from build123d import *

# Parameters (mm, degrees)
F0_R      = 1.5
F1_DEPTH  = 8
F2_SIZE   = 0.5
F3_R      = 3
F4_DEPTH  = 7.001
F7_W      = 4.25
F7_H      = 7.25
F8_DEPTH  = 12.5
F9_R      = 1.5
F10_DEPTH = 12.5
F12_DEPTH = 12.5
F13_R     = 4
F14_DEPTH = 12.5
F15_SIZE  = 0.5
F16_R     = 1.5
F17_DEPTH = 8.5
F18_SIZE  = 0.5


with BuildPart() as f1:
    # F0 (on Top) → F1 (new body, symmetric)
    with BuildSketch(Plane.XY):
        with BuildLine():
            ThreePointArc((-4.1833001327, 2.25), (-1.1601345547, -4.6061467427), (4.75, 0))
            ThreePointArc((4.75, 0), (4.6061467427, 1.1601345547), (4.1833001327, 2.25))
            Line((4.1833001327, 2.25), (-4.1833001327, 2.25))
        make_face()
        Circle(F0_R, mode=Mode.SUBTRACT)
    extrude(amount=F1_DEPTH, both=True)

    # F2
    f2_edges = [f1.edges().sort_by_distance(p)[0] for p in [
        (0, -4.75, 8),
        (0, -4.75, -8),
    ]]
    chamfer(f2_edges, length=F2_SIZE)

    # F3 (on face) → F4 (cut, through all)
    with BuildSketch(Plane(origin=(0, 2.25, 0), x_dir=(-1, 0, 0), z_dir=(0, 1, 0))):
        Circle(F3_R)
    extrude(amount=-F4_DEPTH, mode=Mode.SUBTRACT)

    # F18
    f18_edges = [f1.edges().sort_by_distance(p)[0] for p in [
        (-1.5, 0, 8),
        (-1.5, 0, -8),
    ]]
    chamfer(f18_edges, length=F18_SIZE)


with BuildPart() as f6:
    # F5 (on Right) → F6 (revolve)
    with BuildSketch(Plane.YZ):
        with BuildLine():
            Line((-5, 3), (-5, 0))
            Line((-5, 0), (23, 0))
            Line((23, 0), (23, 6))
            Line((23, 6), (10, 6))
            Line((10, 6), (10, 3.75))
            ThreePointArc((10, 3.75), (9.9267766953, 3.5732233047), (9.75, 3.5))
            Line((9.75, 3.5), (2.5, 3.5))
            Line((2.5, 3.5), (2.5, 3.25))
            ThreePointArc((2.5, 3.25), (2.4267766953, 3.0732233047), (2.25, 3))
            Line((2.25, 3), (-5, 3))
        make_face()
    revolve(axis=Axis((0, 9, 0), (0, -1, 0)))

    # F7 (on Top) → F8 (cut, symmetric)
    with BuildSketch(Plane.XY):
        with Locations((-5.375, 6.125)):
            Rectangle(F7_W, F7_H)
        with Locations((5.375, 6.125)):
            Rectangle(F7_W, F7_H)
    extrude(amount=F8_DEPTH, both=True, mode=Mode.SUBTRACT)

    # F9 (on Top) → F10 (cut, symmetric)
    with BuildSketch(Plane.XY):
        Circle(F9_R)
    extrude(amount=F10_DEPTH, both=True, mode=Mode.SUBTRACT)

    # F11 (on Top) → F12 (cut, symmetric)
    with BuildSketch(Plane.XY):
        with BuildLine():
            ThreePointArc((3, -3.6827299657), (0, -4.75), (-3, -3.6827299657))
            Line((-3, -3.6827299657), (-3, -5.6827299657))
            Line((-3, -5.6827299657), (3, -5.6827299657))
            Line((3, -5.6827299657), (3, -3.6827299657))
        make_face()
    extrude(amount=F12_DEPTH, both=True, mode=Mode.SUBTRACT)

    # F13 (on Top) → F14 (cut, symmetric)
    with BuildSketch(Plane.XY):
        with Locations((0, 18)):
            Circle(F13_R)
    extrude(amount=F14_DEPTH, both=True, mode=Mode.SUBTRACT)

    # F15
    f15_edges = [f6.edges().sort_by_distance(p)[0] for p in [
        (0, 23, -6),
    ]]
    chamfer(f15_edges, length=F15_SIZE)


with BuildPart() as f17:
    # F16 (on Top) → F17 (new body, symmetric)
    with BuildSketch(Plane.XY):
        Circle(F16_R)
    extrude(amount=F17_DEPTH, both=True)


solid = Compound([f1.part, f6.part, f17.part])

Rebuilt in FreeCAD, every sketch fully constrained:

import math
import FreeCAD as App
import Part
import Sketcher
from FreeCAD import Vector
Q = App.Units.Quantity


def edges_at(feature, points):
    """Names of the edges that pass closest to the given points."""
    edges = feature.Shape.Edges
    near = lambda p: min(range(len(edges)), key=lambda i: edges[i].distToShape(Part.Vertex(*p))[0])
    return sorted({f"Edge{near(p) + 1}" for p in points})

doc = App.newDocument("Part")
body = doc.addObject("PartDesign::Body", "Body")

# Sketch on XY plane
sketch1 = body.newObject("Sketcher::SketchObject", "Sketch")
sketch1.AttachmentSupport = (doc.getObject("XY_Plane"), [""])
sketch1.MapMode = "FlatFace"
sketch1.addGeometry(Part.ArcOfCircle(Part.Circle(Vector(0, 0, 0), Vector(0, 0, 1), 4.8), math.radians(152), math.radians(360)), False)
sketch1.addGeometry(Part.ArcOfCircle(Part.Circle(Vector(0, 0, 0), Vector(0, 0, 1), 4.7), math.radians(0), math.radians(28)), False)
sketch1.addGeometry(Part.LineSegment(Vector(4.2, 2.2, 0), Vector(-4.2, 2.2, 0)), False)
sketch1.addGeometry(Part.Circle(Vector(0, 0, 0), Vector(0, 0, 1), 1.5), False)
sketch1.addConstraint(Sketcher.Constraint("Tangent", 0, 2, 1, 1))
sketch1.addConstraint(Sketcher.Constraint("Coincident", 1, 2, 2, 1))
sketch1.addConstraint(Sketcher.Constraint("Coincident", 2, 2, 0, 1))
sketch1.addConstraint(Sketcher.Constraint("Horizontal", 2))
sketch1.addConstraint(Sketcher.Constraint("Coincident", 0, 3, -1, 1))
sketch1.addConstraint(Sketcher.Constraint("Coincident", 3, 3, -1, 1))
sketch1.addConstraint(Sketcher.Constraint("Equal", 0, 1))
sketch1.addConstraint(Sketcher.Constraint("PointOnObject", 0, 2, -1))
sketch1.addConstraint(Sketcher.Constraint("Diameter", 3, Q("3 mm")))
sketch1.addConstraint(Sketcher.Constraint("Radius", 0, Q("4.75 mm")))
sketch1.addConstraint(Sketcher.Constraint("DistanceY", -1, 1, 1, 2, Q("2.25 mm")))
pad1 = body.newObject("PartDesign::Pad", "Pad")
pad1.Profile = sketch1
pad1.Length = 16
pad1.Midplane = True
doc.recompute()

chamfer = body.newObject("PartDesign::Chamfer", "Chamfer")
chamfer.Base = (pad1, edges_at(pad1, [(-1.16, -4.606, 8), (-1.16, -4.606, -8)]))
chamfer.Size = 0.5

# Sketch on XZ plane
sketch2 = body.newObject("Sketcher::SketchObject", "Sketch001")
sketch2.AttachmentSupport = (doc.getObject("XZ_Plane"), [""])
sketch2.MapMode = "FlatFace"
sketch2.AttachmentOffset = App.Placement(Vector(0, 0, -2.25), App.Rotation())
sketch2.addGeometry(Part.Circle(Vector(0, 0, 0), Vector(0, 0, 1), 3), False)
sketch2.addConstraint(Sketcher.Constraint("Coincident", 0, 3, -1, 1))
sketch2.addConstraint(Sketcher.Constraint("Diameter", 0, Q("6 mm")))
pocket1 = body.newObject("PartDesign::Pocket", "Pocket")
pocket1.Profile = sketch2
pocket1.Type = "ThroughAll"
pocket1.Reversed = True
doc.recompute()

chamfer2 = body.newObject("PartDesign::Chamfer", "Chamfer001")
chamfer2.Base = (pocket1, edges_at(pocket1, [(-1.5, 0, 8), (-1.5, 0, -8)]))
chamfer2.Size = 0.5
body2 = doc.addObject("PartDesign::Body", "Body001")

# Sketch on YZ plane
sketch3 = body2.newObject("Sketcher::SketchObject", "Sketch002")
sketch3.AttachmentSupport = (doc.getObject("YZ_Plane001"), [""])
sketch3.MapMode = "FlatFace"
sketch3.addGeometry(Part.LineSegment(Vector(-5, 3, 0), Vector(-5, 0, 0)), False)
sketch3.addGeometry(Part.LineSegment(Vector(-5, 0, 0), Vector(23, 0, 0)), False)
sketch3.addGeometry(Part.LineSegment(Vector(23, 0, 0), Vector(23, 6, 0)), False)
sketch3.addGeometry(Part.LineSegment(Vector(23, 6, 0), Vector(10, 6, 0)), False)
sketch3.addGeometry(Part.LineSegment(Vector(10, 6, 0), Vector(10, 3.75, 0)), False)
sketch3.addGeometry(Part.ArcOfCircle(Part.Circle(Vector(9.75, 3.75, 0), Vector(0, 0, 1), 0.25), math.radians(-90), math.radians(0)), False)
sketch3.addGeometry(Part.LineSegment(Vector(9.75, 3.5, 0), Vector(2.5, 3.5, 0)), False)
sketch3.addGeometry(Part.LineSegment(Vector(2.5, 3.5, 0), Vector(2.5, 3.25, 0)), False)
sketch3.addGeometry(Part.ArcOfCircle(Part.Circle(Vector(2.25, 3.25, 0), Vector(0, 0, 1), 0.25), math.radians(-90), math.radians(0)), False)
sketch3.addGeometry(Part.LineSegment(Vector(2.25, 3, 0), Vector(-5, 3, 0)), False)
sketch3.addConstraint(Sketcher.Constraint("Coincident", 0, 2, 1, 1))
sketch3.addConstraint(Sketcher.Constraint("Coincident", 1, 2, 2, 1))
sketch3.addConstraint(Sketcher.Constraint("Coincident", 2, 2, 3, 1))
sketch3.addConstraint(Sketcher.Constraint("Coincident", 3, 2, 4, 1))
sketch3.addConstraint(Sketcher.Constraint("Tangent", 4, 2, 5, 2))
sketch3.addConstraint(Sketcher.Constraint("Tangent", 5, 1, 6, 1))
sketch3.addConstraint(Sketcher.Constraint("Coincident", 6, 2, 7, 1))
sketch3.addConstraint(Sketcher.Constraint("Tangent", 7, 2, 8, 2))
sketch3.addConstraint(Sketcher.Constraint("Tangent", 8, 1, 9, 1))
sketch3.addConstraint(Sketcher.Constraint("Coincident", 9, 2, 0, 1))
sketch3.addConstraint(Sketcher.Constraint("Vertical", 0))
sketch3.addConstraint(Sketcher.Constraint("Horizontal", 1))
sketch3.addConstraint(Sketcher.Constraint("Vertical", 2))
sketch3.addConstraint(Sketcher.Constraint("Horizontal", 3))
sketch3.addConstraint(Sketcher.Constraint("Vertical", 4))
sketch3.addConstraint(Sketcher.Constraint("Horizontal", 6))
sketch3.addConstraint(Sketcher.Constraint("Vertical", 7))
sketch3.addConstraint(Sketcher.Constraint("Horizontal", 9))
sketch3.addConstraint(Sketcher.Constraint("Equal", 5, 8))
sketch3.addConstraint(Sketcher.Constraint("PointOnObject", 0, 2, -1))
sketch3.addConstraint(Sketcher.Constraint("Equal", 6, 9))
sketch3.addConstraint(Sketcher.Constraint("DistanceX", 1, 1, 1, 2, Q("28 mm")))
sketch3.addConstraint(Sketcher.Constraint("DistanceX", 3, 2, 3, 1, Q("13 mm")))
sketch3.addConstraint(Sketcher.Constraint("DistanceY", 0, 2, 0, 1, Q("3 mm")))
sketch3.addConstraint(Sketcher.Constraint("DistanceY", 2, 1, 2, 2, Q("6 mm")))
sketch3.addConstraint(Sketcher.Constraint("Radius", 5, Q("0.25 mm")))
sketch3.addConstraint(Sketcher.Constraint("DistanceX", 0, 2, -1, 1, Q("5 mm")))
sketch3.addConstraint(Sketcher.Constraint("DistanceY", 4, 2, 4, 1, Q("2.25 mm")))
revolution = body2.newObject("PartDesign::Revolution", "Revolution")
revolution.Profile = sketch3
revolution.ReferenceAxis = (sketch3, ["H_Axis"])
revolution.Angle = 360

# Sketch on XY plane
sketch4 = body2.newObject("Sketcher::SketchObject", "Sketch003")
sketch4.AttachmentSupport = (doc.getObject("XY_Plane001"), [""])
sketch4.MapMode = "FlatFace"
sketch4.addGeometry(Part.LineSegment(Vector(-7.5, 9.8, 0), Vector(-7.5, 2.5, 0)), False)
sketch4.addGeometry(Part.LineSegment(Vector(-7.5, 2.5, 0), Vector(-3.2, 2.5, 0)), False)
sketch4.addGeometry(Part.LineSegment(Vector(-3.2, 2.5, 0), Vector(-3.2, 9.8, 0)), False)
sketch4.addGeometry(Part.LineSegment(Vector(-3.2, 9.8, 0), Vector(-7.5, 9.8, 0)), False)
sketch4.addGeometry(Part.LineSegment(Vector(3.2, 9.8, 0), Vector(3.2, 2.5, 0)), False)
sketch4.addGeometry(Part.LineSegment(Vector(3.2, 2.5, 0), Vector(7.5, 2.5, 0)), False)
sketch4.addGeometry(Part.LineSegment(Vector(7.5, 2.5, 0), Vector(7.5, 9.8, 0)), False)
sketch4.addGeometry(Part.LineSegment(Vector(7.5, 9.8, 0), Vector(3.2, 9.8, 0)), False)
sketch4.addConstraint(Sketcher.Constraint("Coincident", 0, 2, 1, 1))
sketch4.addConstraint(Sketcher.Constraint("Coincident", 1, 2, 2, 1))
sketch4.addConstraint(Sketcher.Constraint("Coincident", 2, 2, 3, 1))
sketch4.addConstraint(Sketcher.Constraint("Coincident", 3, 2, 0, 1))
sketch4.addConstraint(Sketcher.Constraint("Coincident", 4, 2, 5, 1))
sketch4.addConstraint(Sketcher.Constraint("Coincident", 5, 2, 6, 1))
sketch4.addConstraint(Sketcher.Constraint("Coincident", 6, 2, 7, 1))
sketch4.addConstraint(Sketcher.Constraint("Coincident", 7, 2, 4, 1))
sketch4.addConstraint(Sketcher.Constraint("Vertical", 0))
sketch4.addConstraint(Sketcher.Constraint("Horizontal", 1))
sketch4.addConstraint(Sketcher.Constraint("Vertical", 2))
sketch4.addConstraint(Sketcher.Constraint("Horizontal", 3))
sketch4.addConstraint(Sketcher.Constraint("Vertical", 4))
sketch4.addConstraint(Sketcher.Constraint("Horizontal", 5))
sketch4.addConstraint(Sketcher.Constraint("Vertical", 6))
sketch4.addConstraint(Sketcher.Constraint("Horizontal", 7))
sketch4.addConstraint(Sketcher.Constraint("Symmetric", 1, 2, 4, 2, -2))
sketch4.addConstraint(Sketcher.Constraint("Symmetric", 3, 2, 6, 2, -2))
sketch4.addConstraint(Sketcher.Constraint("DistanceX", 0, 2, 5, 2, Q("15 mm")))
sketch4.addConstraint(Sketcher.Constraint("DistanceX", 1, 1, 1, 2, Q("4.25 mm")))
sketch4.addConstraint(Sketcher.Constraint("DistanceY", 0, 2, 0, 1, Q("7.25 mm")))
sketch4.addConstraint(Sketcher.Constraint("DistanceY", -1, 1, 0, 2, Q("2.5 mm")))
pocket2 = body2.newObject("PartDesign::Pocket", "Pocket001")
pocket2.Profile = sketch4
pocket2.Length = 25
pocket2.Midplane = True

# Sketch on XY plane
sketch5 = body2.newObject("Sketcher::SketchObject", "Sketch004")
sketch5.AttachmentSupport = (doc.getObject("XY_Plane001"), [""])
sketch5.MapMode = "FlatFace"
sketch5.addGeometry(Part.Circle(Vector(0, 0, 0), Vector(0, 0, 1), 1.5), False)
sketch5.addConstraint(Sketcher.Constraint("Coincident", 0, 3, -1, 1))
sketch5.addConstraint(Sketcher.Constraint("Diameter", 0, Q("3 mm")))
pocket3 = body2.newObject("PartDesign::Pocket", "Pocket002")
pocket3.Profile = sketch5
pocket3.Length = 25
pocket3.Midplane = True

# Sketch on XY plane
sketch6 = body2.newObject("Sketcher::SketchObject", "Sketch005")
sketch6.AttachmentSupport = (doc.getObject("XY_Plane001"), [""])
sketch6.MapMode = "FlatFace"
sketch6.addGeometry(Part.ArcOfCircle(Part.Circle(Vector(0, 0, 0), Vector(0, 0, 1), 4.8), math.radians(-129), math.radians(-51)), False)
sketch6.addGeometry(Part.LineSegment(Vector(-3, -3.7, 0), Vector(-3, -5.7, 0)), False)
sketch6.addGeometry(Part.LineSegment(Vector(-3, -5.7, 0), Vector(3, -5.7, 0)), False)
sketch6.addGeometry(Part.LineSegment(Vector(3, -5.7, 0), Vector(3, -3.7, 0)), False)
sketch6.addConstraint(Sketcher.Constraint("Coincident", 0, 1, 1, 1))
sketch6.addConstraint(Sketcher.Constraint("Coincident", 1, 2, 2, 1))
sketch6.addConstraint(Sketcher.Constraint("Coincident", 2, 2, 3, 1))
sketch6.addConstraint(Sketcher.Constraint("Coincident", 3, 2, 0, 2))
sketch6.addConstraint(Sketcher.Constraint("Vertical", 1))
sketch6.addConstraint(Sketcher.Constraint("Horizontal", 2))
sketch6.addConstraint(Sketcher.Constraint("Vertical", 3))
sketch6.addConstraint(Sketcher.Constraint("Coincident", 0, 3, -1, 1))
sketch6.addConstraint(Sketcher.Constraint("Horizontal", 0, 1, 3, 2))
sketch6.addConstraint(Sketcher.Constraint("DistanceX", 2, 1, 2, 2, Q("6 mm")))
sketch6.addConstraint(Sketcher.Constraint("DistanceY", 1, 2, 1, 1, Q("2 mm")))
sketch6.addConstraint(Sketcher.Constraint("Radius", 0, Q("4.75 mm")))
pocket4 = body2.newObject("PartDesign::Pocket", "Pocket003")
pocket4.Profile = sketch6
pocket4.Length = 25
pocket4.Midplane = True

# Sketch on XY plane
sketch7 = body2.newObject("Sketcher::SketchObject", "Sketch006")
sketch7.AttachmentSupport = (doc.getObject("XY_Plane001"), [""])
sketch7.MapMode = "FlatFace"
sketch7.addGeometry(Part.Circle(Vector(0, 18, 0), Vector(0, 0, 1), 4), False)
sketch7.addConstraint(Sketcher.Constraint("PointOnObject", 0, 3, -2))
sketch7.addConstraint(Sketcher.Constraint("Diameter", 0, Q("8 mm")))
sketch7.addConstraint(Sketcher.Constraint("DistanceY", -1, 1, 0, 3, Q("18 mm")))
pocket5 = body2.newObject("PartDesign::Pocket", "Pocket004")
pocket5.Profile = sketch7
pocket5.Length = 25
pocket5.Midplane = True
doc.recompute()

chamfer3 = body2.newObject("PartDesign::Chamfer", "Chamfer002")
chamfer3.Base = (pocket5, edges_at(pocket5, [(0, 23, -6)]))
chamfer3.Size = 0.5
body3 = doc.addObject("PartDesign::Body", "Body002")

# Sketch on XY plane
sketch8 = body3.newObject("Sketcher::SketchObject", "Sketch007")
sketch8.AttachmentSupport = (doc.getObject("XY_Plane002"), [""])
sketch8.MapMode = "FlatFace"
sketch8.addGeometry(Part.Circle(Vector(0, 0, 0), Vector(0, 0, 1), 1.5), False)
sketch8.addConstraint(Sketcher.Constraint("Coincident", 0, 3, -1, 1))
sketch8.addConstraint(Sketcher.Constraint("Diameter", 0, Q("3 mm")))
pad2 = body3.newObject("PartDesign::Pad", "Pad001")
pad2.Profile = sketch8
pad2.Length = 17
pad2.Midplane = True

doc.recompute()
